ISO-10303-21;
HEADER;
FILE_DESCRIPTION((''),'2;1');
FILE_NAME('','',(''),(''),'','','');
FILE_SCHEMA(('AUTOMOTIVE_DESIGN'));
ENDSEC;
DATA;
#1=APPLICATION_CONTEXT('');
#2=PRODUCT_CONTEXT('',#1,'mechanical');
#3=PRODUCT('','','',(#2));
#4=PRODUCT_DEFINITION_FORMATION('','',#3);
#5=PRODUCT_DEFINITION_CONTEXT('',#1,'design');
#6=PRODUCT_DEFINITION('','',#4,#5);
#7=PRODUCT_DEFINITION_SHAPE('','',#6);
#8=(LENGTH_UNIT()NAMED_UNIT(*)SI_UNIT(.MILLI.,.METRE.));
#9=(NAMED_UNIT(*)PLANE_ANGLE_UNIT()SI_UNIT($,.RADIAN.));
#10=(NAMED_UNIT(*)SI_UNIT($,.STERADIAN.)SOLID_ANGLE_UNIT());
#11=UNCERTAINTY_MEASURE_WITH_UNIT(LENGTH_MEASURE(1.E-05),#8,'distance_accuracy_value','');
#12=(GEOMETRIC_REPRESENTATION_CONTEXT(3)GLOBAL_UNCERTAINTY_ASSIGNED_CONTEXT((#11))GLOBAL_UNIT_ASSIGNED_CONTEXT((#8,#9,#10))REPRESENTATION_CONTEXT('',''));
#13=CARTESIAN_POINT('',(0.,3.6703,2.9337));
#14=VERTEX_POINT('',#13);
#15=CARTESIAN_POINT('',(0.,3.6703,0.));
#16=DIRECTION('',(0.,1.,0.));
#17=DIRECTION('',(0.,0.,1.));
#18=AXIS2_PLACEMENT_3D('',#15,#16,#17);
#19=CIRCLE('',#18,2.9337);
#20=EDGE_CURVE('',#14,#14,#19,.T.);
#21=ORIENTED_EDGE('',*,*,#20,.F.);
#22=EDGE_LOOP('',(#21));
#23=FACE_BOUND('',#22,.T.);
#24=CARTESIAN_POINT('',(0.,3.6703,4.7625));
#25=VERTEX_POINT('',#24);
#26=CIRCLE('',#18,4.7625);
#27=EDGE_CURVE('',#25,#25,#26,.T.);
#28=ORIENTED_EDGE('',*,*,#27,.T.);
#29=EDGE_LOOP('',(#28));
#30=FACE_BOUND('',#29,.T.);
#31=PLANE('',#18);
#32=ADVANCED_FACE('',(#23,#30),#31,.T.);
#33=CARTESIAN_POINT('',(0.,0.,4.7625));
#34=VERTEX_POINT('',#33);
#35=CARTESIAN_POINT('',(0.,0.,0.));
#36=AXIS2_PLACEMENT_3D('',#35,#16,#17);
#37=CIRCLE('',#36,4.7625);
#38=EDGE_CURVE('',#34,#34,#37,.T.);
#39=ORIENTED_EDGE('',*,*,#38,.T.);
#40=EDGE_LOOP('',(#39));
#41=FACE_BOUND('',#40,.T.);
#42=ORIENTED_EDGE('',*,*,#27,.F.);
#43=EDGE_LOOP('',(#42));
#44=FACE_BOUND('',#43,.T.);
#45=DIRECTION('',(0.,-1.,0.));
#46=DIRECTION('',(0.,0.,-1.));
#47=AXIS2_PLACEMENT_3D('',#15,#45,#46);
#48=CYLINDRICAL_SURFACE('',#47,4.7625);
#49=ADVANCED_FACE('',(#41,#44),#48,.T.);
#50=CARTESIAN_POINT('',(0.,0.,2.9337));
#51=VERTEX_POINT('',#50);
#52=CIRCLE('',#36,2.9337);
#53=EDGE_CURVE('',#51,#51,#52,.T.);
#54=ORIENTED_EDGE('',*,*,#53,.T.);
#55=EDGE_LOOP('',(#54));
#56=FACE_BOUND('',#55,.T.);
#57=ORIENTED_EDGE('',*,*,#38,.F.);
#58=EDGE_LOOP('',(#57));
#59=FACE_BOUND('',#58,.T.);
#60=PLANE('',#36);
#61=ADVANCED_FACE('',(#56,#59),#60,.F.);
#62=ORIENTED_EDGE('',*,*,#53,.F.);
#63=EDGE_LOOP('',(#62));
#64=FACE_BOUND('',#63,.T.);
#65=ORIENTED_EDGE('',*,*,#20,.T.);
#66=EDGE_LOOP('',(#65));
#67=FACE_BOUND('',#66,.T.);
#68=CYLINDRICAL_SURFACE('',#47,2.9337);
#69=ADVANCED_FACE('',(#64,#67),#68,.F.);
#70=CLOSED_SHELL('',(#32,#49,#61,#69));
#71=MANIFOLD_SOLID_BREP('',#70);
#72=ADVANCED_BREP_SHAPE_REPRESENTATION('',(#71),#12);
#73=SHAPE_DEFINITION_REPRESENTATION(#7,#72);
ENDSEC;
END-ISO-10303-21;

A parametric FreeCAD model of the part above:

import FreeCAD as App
import Part
import Sketcher
Q = App.Units.Quantity

doc = App.newDocument("Part")
body = doc.addObject("PartDesign::Body", "Body")

# Sketch on XZ plane
sketch1 = body.newObject("Sketcher::SketchObject", "Sketch")
sketch1.AttachmentSupport = (doc.getObject("XZ_Plane"), [""])
sketch1.MapMode = "FlatFace"
sketch1.addGeometry([
    Part.Circle(App.Vector(0, 0, 0), App.Vector(0, 0, 1), 4.7625),
    Part.Circle(App.Vector(0, 0, 0), App.Vector(0, 0, 1), 2.9337),
], False)
sketch1.addConstraint([
    Sketcher.Constraint("Coincident", 0, 3, -1, 1),
    Sketcher.Constraint("Coincident", 1, 3, -1, 1),
    Sketcher.Constraint("Diameter", 0, Q("0.375 in")),
    Sketcher.Constraint("Diameter", 1, Q("0.231 in")),
])
pad1 = body.newObject("PartDesign::Pad", "Pad")
pad1.Profile = sketch1
pad1.Length = Q("0.1445 in")
pad1.Reversed = True

doc.recompute()
